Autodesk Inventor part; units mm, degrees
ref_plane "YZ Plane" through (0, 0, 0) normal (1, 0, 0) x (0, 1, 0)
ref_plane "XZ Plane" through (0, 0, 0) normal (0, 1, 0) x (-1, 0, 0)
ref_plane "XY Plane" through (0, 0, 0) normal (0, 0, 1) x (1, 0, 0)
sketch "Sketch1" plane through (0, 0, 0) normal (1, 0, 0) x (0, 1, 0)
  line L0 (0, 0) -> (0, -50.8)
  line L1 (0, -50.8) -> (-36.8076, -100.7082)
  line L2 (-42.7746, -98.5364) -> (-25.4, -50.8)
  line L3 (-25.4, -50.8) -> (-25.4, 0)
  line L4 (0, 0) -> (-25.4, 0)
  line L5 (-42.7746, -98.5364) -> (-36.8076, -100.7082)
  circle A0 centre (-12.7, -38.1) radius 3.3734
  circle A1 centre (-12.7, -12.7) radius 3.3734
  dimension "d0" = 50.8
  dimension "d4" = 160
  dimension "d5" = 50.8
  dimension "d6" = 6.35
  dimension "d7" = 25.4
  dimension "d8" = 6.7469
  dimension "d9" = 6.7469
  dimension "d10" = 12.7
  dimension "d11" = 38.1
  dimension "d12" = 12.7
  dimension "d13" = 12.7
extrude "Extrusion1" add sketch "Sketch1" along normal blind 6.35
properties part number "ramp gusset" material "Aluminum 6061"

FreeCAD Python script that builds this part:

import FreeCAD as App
import Part
import Sketcher
from FreeCAD import Vector
Q = App.Units.Quantity


def add_polygon(sketch, points):
    """Adds a closed chain of lines whose ends are joined by coincident constraints."""
    first, n = sketch.GeometryCount, len(points)
    for a, b in zip(points, points[1:] + points[:1]):
        sketch.addGeometry(Part.LineSegment(App.Vector(*a, 0), App.Vector(*b, 0)), False)
    for i in range(n):
        sketch.addConstraint(Sketcher.Constraint("Coincident", first + i, 2, first + (i + 1) % n, 1))

doc = App.newDocument("Part")
params = doc.addObject("Spreadsheet::Sheet", "Params")
for row, (alias, value) in enumerate([
    ("sketch1_width", "1 in"),
    ("sketch1_height", "2 in"),
    ("sketch1_length", "2 in"),
    ("sketch1_diameter", "0.265622 in"),
    ("sketch1_length2", "0.25 in"),
    ("pad1_length", "0.25 in"),
], start=1):
    params.set(f"A{row}", alias)
    params.set(f"B{row}", "=" + value)
    params.setAlias(f"B{row}", alias)

body = doc.addObject("PartDesign::Body", "Body")

# Sketch on YZ plane
sketch1 = body.newObject("Sketcher::SketchObject", "Sketch")
sketch1.AttachmentSupport = (doc.getObject("YZ_Plane"), [""])
sketch1.MapMode = "FlatFace"
add_polygon(sketch1, [(0, -50.8), (0, 0), (-25.4, 0), (-25.4, -50.8), (-42.8, -98.5), (-36.8, -100.7)])  # lines 0-5
sketch1.addGeometry(Part.Circle(Vector(-12.7, -38.1, 0), Vector(0, 0, 1), 3.4), False)  # 6
sketch1.addGeometry(Part.Circle(Vector(-12.7, -12.7, 0), Vector(0, 0, 1), 3.4), False)  # 7
sketch1.addConstraint(Sketcher.Constraint("Vertical", 0))
sketch1.addConstraint(Sketcher.Constraint("Horizontal", 1))
sketch1.addConstraint(Sketcher.Constraint("Vertical", 2))
sketch1.addConstraint(Sketcher.Constraint("Coincident", 0, 2, -1, 1))
sketch1.addConstraint(Sketcher.Constraint("Equal", 6, 7))
sketch1.addConstraint(Sketcher.Constraint("Perpendicular", 3, 4))
sketch1.addConstraint(Sketcher.Constraint("Horizontal", 2, 2, 5, 2))
sketch1.addConstraint(Sketcher.Constraint("Vertical", 6, 3, 7, 3))
sketch1.addConstraint(Sketcher.Constraint("DistanceX", 1, 2, 1, 1, Q("1 in")))
sketch1.addConstraint(Sketcher.Constraint("DistanceY", 0, 1, 0, 2, Q("2 in")))
sketch1.addConstraint(Sketcher.Constraint("Distance", 3, Q("2 in")))
sketch1.addConstraint(Sketcher.Constraint("Diameter", 6, Q("0.265622 in")))
sketch1.addConstraint(Sketcher.Constraint("DistanceY", 6, 3, 7, 3, Q("1 in")))
sketch1.addConstraint(Sketcher.Constraint("DistanceX", 6, 3, -1, 1, Q("0.5 in")))
sketch1.addConstraint(Sketcher.Constraint("DistanceY", 6, 3, -1, 1, Q("1.5 in")))
sketch1.addConstraint(Sketcher.Constraint("Distance", 4, Q("0.25 in")))
sketch1.addConstraint(Sketcher.Constraint("Angle", 3, Q("-110 deg")))
sketch1.setExpression("Constraints[14]", "Params.sketch1_width")
sketch1.setExpression("Constraints[15]", "Params.sketch1_height")
sketch1.setExpression("Constraints[16]", "Params.sketch1_length")
sketch1.setExpression("Constraints[17]", "Params.sketch1_diameter")
sketch1.setExpression("Constraints[21]", "Params.sketch1_length2")
pad1 = body.newObject("PartDesign::Pad", "Pad")
pad1.Profile = sketch1
pad1.setExpression("Length", "Params.pad1_length")

doc.recompute()
